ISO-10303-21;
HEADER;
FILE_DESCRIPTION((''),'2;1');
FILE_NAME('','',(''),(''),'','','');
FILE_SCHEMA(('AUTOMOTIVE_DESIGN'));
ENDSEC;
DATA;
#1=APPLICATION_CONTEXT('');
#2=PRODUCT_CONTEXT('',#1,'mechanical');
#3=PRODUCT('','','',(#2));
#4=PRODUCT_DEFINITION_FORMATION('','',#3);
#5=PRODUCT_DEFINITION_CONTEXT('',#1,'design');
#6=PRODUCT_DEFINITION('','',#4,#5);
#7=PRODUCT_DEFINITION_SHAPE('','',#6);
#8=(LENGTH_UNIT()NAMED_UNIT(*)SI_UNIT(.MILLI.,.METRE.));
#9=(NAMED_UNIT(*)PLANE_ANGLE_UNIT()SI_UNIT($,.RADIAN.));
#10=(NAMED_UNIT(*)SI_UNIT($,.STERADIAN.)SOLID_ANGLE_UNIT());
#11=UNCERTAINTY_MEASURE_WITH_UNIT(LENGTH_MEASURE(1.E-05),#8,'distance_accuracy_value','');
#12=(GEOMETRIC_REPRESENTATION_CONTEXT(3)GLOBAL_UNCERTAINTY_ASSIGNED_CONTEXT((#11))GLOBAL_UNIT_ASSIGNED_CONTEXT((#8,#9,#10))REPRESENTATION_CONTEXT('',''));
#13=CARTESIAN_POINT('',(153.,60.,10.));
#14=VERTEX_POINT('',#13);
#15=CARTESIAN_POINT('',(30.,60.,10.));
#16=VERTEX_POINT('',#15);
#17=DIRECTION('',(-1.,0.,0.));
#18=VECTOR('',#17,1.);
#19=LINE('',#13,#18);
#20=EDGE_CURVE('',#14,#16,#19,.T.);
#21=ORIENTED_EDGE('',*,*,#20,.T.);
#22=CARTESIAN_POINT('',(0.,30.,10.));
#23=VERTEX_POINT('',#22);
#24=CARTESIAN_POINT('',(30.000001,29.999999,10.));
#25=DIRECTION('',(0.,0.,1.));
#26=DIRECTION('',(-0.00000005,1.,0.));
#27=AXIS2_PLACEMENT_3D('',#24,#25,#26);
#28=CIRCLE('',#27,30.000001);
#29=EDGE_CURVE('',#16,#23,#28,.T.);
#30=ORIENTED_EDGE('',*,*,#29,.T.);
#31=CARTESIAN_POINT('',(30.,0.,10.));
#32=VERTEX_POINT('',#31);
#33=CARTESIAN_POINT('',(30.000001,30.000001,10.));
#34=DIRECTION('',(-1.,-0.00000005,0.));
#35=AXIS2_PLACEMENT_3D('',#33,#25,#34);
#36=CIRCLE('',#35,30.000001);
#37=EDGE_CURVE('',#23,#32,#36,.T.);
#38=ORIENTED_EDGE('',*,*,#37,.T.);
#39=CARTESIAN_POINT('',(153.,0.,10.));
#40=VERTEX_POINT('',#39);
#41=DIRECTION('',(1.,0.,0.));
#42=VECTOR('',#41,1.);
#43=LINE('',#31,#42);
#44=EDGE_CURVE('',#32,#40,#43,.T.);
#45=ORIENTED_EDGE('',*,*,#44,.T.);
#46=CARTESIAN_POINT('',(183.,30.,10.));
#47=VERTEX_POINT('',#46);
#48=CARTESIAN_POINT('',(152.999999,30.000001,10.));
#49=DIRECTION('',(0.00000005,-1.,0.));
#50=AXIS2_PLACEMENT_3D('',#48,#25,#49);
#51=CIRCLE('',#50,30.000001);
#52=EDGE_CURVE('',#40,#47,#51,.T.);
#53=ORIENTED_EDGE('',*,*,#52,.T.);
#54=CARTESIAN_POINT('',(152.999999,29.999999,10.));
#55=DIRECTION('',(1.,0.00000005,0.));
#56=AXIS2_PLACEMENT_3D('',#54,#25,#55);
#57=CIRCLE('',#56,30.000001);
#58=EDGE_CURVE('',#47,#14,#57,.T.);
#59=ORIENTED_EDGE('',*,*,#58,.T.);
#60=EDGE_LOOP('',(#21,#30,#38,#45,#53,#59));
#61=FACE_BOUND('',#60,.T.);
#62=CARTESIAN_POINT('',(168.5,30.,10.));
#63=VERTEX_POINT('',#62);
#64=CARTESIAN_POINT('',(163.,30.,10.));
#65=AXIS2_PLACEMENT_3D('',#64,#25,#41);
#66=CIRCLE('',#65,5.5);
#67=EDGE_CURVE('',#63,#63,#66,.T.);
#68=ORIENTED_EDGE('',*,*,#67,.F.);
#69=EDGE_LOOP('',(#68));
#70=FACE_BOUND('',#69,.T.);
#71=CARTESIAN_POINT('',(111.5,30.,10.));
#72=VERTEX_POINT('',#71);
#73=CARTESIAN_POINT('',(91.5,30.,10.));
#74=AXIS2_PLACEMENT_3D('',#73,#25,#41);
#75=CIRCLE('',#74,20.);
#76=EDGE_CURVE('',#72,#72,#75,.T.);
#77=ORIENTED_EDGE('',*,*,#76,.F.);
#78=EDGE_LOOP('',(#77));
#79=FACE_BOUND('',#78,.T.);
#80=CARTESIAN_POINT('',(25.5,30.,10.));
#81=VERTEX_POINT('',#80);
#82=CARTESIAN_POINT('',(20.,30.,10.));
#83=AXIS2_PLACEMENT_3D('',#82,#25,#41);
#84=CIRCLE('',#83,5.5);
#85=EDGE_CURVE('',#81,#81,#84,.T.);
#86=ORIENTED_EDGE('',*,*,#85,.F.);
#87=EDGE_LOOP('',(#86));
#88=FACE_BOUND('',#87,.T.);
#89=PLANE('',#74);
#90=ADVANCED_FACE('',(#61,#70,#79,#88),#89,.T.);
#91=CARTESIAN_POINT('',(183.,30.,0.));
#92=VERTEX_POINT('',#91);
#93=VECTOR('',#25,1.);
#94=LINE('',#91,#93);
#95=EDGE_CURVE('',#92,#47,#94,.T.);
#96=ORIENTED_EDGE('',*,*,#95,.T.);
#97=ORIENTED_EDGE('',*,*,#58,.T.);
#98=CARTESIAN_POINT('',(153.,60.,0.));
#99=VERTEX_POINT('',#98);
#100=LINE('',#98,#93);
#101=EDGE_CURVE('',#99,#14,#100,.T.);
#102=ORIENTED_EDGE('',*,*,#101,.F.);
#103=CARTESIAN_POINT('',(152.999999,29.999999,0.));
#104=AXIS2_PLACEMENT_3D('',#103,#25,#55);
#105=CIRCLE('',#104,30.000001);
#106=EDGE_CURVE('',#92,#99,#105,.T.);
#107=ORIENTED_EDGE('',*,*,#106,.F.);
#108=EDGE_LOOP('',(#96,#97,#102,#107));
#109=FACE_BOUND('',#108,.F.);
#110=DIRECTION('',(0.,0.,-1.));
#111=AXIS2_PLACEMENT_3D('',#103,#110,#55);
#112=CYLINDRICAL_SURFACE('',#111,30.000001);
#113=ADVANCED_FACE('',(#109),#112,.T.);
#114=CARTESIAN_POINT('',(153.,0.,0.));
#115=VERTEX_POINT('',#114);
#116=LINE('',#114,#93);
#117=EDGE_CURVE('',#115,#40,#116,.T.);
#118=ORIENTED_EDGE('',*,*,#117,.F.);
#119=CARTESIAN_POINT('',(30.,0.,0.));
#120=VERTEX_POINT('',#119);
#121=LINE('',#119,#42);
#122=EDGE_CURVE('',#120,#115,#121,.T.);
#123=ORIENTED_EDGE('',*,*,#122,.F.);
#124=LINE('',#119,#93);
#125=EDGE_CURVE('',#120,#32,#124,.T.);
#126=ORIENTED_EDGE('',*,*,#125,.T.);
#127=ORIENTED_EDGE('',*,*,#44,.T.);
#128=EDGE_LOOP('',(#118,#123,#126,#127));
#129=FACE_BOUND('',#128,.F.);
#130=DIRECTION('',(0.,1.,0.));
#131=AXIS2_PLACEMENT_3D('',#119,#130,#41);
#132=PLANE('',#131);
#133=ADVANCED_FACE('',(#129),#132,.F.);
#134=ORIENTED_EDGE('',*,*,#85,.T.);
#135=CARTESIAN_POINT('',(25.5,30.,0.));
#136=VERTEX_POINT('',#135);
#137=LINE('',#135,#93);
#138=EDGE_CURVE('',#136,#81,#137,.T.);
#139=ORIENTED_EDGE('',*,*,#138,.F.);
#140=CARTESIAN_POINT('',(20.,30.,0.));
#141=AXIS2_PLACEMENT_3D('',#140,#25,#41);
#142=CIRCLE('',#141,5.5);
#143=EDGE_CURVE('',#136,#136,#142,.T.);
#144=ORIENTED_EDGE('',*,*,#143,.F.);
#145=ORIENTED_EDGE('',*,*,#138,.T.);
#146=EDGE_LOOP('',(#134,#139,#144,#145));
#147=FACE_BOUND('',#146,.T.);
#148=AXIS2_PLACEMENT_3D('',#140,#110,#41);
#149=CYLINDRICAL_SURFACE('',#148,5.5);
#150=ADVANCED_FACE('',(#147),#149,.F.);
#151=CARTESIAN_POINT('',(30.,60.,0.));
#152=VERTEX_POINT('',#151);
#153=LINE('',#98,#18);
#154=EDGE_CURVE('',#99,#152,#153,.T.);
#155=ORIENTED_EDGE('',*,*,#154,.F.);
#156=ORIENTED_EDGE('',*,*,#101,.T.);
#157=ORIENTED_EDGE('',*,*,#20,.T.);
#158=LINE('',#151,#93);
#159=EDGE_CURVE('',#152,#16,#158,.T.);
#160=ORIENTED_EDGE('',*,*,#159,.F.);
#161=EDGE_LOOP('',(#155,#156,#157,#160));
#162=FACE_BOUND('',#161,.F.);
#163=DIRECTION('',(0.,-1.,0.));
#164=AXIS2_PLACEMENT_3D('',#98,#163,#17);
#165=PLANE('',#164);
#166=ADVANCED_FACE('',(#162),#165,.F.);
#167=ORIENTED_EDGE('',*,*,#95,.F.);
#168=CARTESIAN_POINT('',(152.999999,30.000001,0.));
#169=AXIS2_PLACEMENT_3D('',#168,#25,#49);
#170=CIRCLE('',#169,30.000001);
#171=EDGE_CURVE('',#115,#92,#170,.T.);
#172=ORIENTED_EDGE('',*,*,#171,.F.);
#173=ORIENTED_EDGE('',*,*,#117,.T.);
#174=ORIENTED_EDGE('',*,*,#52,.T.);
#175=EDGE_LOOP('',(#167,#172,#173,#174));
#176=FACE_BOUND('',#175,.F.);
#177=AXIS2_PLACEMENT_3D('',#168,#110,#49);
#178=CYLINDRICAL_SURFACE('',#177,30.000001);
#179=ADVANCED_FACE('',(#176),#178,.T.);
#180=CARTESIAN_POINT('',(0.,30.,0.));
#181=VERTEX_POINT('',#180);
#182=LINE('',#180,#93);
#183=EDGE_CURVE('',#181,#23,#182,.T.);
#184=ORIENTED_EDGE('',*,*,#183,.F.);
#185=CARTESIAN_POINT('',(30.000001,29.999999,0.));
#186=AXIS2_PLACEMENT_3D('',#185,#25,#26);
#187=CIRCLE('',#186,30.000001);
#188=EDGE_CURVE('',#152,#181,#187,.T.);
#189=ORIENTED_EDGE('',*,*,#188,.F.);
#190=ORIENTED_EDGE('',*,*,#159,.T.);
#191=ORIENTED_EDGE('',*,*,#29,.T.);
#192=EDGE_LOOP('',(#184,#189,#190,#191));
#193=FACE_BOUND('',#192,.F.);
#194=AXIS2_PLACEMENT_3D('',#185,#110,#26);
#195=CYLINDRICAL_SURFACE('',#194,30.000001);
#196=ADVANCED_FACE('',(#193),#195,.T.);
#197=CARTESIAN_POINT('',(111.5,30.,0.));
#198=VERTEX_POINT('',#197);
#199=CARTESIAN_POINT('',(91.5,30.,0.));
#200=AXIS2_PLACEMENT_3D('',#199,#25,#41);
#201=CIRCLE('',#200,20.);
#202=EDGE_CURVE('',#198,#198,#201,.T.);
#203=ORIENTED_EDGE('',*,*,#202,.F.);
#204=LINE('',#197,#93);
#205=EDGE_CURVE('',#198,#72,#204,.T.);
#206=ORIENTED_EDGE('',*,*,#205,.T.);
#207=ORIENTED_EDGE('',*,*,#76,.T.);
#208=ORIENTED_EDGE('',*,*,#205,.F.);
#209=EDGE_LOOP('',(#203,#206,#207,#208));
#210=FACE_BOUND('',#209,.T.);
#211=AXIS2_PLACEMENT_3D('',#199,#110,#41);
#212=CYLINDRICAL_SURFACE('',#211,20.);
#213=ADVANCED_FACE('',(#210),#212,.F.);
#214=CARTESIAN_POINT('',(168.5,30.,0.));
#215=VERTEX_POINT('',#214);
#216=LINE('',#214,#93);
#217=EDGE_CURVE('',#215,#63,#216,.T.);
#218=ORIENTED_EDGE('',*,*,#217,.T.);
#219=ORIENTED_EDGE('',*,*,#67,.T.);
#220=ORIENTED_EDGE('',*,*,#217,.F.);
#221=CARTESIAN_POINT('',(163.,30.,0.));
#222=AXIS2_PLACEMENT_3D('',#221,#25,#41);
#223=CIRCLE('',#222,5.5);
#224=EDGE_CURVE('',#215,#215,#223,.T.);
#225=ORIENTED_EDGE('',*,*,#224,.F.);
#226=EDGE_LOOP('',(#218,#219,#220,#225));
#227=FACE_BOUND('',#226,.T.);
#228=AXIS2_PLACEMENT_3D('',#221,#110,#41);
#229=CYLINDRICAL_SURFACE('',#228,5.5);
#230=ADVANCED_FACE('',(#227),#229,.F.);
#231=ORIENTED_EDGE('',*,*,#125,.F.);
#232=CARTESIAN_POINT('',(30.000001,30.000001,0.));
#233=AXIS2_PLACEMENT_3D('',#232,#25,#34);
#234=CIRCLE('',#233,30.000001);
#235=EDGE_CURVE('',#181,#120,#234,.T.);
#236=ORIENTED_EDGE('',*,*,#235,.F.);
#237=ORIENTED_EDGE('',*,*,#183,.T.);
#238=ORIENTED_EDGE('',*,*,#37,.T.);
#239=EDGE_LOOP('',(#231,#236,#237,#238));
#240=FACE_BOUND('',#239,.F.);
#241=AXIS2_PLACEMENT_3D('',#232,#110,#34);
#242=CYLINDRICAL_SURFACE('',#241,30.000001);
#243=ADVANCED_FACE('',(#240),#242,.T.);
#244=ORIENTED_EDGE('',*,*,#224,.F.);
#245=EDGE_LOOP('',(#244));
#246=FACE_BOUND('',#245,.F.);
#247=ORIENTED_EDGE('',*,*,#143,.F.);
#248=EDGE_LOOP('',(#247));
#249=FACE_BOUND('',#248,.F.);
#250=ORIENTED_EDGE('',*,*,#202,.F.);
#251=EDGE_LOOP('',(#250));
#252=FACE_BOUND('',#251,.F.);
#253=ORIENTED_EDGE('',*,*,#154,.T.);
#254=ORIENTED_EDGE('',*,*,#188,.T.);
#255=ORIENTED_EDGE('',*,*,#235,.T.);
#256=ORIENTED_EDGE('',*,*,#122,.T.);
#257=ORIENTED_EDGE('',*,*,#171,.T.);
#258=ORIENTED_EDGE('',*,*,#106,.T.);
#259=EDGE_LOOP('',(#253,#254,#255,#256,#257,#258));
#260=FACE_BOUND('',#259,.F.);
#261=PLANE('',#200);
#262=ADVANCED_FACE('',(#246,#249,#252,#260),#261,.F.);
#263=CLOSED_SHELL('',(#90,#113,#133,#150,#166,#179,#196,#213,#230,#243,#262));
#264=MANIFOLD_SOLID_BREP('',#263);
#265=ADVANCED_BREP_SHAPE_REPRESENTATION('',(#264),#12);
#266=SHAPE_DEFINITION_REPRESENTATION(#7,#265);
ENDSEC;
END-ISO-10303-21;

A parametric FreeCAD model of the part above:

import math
import FreeCAD as App
import Part
import Sketcher

V = App.Vector
Q = App.Units.Quantity

doc = App.newDocument("Part")
body = doc.addObject("PartDesign::Body", "Body")

# Sketch on XY plane
sketch1 = body.newObject("Sketcher::SketchObject", "Sketch")
sketch1.AttachmentSupport = (doc.getObject("XY_Plane"), [""])
sketch1.MapMode = "FlatFace"
sketch1.addGeometry([
    Part.ArcOfCircle(Part.Circle(V(30, 30, 0), V(0, 0, 1), 30), math.radians(-180), math.radians(-90)),  # 0
    Part.LineSegment(V(30, 0, 0), V(153, 0, 0)),  # 1
    Part.ArcOfCircle(Part.Circle(V(153, 30, 0), V(0, 0, 1), 30), math.radians(-90), math.radians(0)),  # 2
    Part.ArcOfCircle(Part.Circle(V(153, 30, 0), V(0, 0, 1), 30), math.radians(0), math.radians(90)),  # 3
    Part.LineSegment(V(153, 60, 0), V(30, 60, 0)),  # 4
    Part.ArcOfCircle(Part.Circle(V(30, 30, 0), V(0, 0, 1), 30), math.radians(90), math.radians(180)),  # 5
    Part.Circle(V(20, 30, 0), V(0, 0, 1), 6),  # 6
    Part.Circle(V(92, 30, 0), V(0, 0, 1), 20),  # 7
    Part.Circle(V(163, 30, 0), V(0, 0, 1), 6),  # 8
], False)
sketch1.addConstraint([
    Sketcher.Constraint("Tangent", 0, 2, 1, 1),
    Sketcher.Constraint("Tangent", 1, 2, 2, 1),
    Sketcher.Constraint("Tangent", 2, 2, 3, 1),
    Sketcher.Constraint("Tangent", 3, 2, 4, 1),
    Sketcher.Constraint("Tangent", 4, 2, 5, 1),
    Sketcher.Constraint("Tangent", 5, 2, 0, 1),
    Sketcher.Constraint("Horizontal", 1),
    Sketcher.Constraint("Horizontal", 4),
    Sketcher.Constraint("Equal", 0, 2),
    Sketcher.Constraint("Equal", 2, 3),
    Sketcher.Constraint("Equal", 6, 8),
    Sketcher.Constraint("PointOnObject", 0, 2, -1),
    Sketcher.Constraint("PointOnObject", 5, 2, -2),
    Sketcher.Constraint("Horizontal", 5, 3, 6, 3),
    Sketcher.Constraint("Horizontal", 6, 3, 7, 3),
    Sketcher.Constraint("Horizontal", 7, 3, 8, 3),
    Sketcher.Constraint("Horizontal", 8, 3, 2, 2),
    Sketcher.Constraint("Horizontal", 2, 2, 5, 2),
    Sketcher.Constraint("Diameter", 6, Q("11 mm")),
    Sketcher.Constraint("Diameter", 7, Q("40 mm")),
    Sketcher.Constraint("Radius", 0, Q("30.000001 mm")),
    Sketcher.Constraint("DistanceX", 1, 1, 1, 2, Q("123 mm")),
    Sketcher.Constraint("DistanceX", -1, 1, 6, 3, Q("20 mm")),
    Sketcher.Constraint("DistanceX", -1, 1, 8, 3, Q("163 mm")),
    Sketcher.Constraint("DistanceX", -1, 1, 7, 3, Q("91.5 mm")),
])
pad1 = body.newObject("PartDesign::Pad", "Pad")
pad1.Profile = sketch1
pad1.Length = 10

doc.recompute()
